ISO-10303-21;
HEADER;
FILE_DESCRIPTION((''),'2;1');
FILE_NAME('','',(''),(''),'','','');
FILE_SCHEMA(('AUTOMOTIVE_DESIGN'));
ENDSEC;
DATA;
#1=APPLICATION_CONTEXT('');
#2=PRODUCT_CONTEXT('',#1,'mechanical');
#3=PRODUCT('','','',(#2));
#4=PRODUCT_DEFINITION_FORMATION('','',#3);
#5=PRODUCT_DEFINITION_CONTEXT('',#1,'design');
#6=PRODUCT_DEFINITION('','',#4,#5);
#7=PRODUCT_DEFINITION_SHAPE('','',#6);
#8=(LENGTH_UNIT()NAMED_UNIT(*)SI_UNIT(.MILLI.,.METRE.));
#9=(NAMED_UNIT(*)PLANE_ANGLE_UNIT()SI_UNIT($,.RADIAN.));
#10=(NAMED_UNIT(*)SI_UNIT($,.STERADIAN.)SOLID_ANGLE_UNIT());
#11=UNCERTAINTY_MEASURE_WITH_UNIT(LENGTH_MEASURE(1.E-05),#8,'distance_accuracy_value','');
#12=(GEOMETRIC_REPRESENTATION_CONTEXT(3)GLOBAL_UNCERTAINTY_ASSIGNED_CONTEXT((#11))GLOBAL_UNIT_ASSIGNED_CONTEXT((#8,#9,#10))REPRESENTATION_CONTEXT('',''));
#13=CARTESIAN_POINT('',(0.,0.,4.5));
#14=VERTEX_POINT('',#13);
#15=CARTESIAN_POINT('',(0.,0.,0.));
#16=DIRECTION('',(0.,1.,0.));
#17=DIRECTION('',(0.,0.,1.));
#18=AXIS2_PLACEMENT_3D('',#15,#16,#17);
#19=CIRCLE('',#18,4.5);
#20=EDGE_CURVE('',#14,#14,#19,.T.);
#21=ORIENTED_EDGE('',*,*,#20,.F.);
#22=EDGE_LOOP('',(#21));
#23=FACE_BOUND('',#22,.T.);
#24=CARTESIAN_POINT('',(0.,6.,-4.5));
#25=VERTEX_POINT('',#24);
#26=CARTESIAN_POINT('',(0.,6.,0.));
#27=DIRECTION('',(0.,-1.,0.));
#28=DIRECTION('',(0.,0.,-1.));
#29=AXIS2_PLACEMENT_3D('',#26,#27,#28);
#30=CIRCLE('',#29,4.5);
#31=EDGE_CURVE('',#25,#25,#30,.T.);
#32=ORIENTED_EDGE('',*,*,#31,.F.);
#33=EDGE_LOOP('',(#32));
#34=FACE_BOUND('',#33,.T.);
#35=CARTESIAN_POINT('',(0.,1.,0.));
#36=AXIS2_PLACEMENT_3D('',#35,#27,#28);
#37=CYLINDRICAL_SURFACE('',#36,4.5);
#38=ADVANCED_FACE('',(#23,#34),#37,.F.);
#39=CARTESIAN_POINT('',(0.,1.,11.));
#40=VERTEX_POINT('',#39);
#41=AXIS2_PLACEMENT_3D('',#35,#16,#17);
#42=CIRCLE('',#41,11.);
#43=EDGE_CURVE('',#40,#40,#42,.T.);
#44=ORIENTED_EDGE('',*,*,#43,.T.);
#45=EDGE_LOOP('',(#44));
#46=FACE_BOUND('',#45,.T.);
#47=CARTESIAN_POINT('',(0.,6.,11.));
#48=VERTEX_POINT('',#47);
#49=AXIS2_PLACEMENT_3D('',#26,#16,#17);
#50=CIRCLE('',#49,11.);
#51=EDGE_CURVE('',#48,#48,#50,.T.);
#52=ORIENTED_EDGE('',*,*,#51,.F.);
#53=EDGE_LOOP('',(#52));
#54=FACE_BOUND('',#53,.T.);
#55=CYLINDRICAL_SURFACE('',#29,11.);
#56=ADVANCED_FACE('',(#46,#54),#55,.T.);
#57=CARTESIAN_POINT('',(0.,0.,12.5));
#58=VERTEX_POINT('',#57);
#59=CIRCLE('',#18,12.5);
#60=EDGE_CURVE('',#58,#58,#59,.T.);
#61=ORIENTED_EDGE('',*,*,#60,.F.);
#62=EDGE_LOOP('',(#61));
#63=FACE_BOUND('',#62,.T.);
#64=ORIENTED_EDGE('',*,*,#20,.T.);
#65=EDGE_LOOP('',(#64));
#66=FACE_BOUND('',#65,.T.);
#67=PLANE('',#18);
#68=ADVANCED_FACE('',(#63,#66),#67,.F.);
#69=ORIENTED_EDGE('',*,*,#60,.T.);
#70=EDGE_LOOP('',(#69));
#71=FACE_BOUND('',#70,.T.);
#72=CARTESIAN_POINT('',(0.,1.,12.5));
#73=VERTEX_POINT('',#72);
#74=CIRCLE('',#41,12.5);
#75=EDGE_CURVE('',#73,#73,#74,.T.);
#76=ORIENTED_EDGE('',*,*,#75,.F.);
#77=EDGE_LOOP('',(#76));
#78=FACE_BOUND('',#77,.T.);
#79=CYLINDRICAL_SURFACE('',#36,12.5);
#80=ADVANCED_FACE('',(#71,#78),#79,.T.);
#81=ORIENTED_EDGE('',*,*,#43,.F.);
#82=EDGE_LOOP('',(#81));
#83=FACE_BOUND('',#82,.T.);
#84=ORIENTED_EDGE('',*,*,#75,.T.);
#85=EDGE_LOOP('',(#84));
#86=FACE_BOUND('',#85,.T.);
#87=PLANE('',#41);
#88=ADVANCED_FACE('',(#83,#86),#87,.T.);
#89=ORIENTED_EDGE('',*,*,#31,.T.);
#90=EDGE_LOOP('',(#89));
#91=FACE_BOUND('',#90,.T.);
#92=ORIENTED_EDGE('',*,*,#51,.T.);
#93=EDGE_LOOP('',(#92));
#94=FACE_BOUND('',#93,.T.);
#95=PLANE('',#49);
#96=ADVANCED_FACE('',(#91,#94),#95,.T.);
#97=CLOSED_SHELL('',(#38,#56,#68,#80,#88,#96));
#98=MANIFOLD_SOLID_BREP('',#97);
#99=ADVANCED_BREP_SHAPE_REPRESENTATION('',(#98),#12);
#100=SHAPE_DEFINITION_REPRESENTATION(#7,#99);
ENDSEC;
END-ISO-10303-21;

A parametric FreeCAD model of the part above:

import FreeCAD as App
import Part
import Sketcher
from FreeCAD import Vector
Q = App.Units.Quantity

doc = App.newDocument("Part")
body = doc.addObject("PartDesign::Body", "Body")

sketch1 = doc.addObject("Sketcher::SketchObject", "Sketch")
body.addObject(sketch1)
sketch1.AttachmentSupport = (doc.XZ_Plane, [""])
sketch1.MapMode = "FlatFace"
sketch1.addGeometry([
    Part.Circle(Vector(0, 0, 0), Vector(0, 0, 1), 12.5),
    Part.Circle(Vector(0, 0, 0), Vector(0, 0, 1), 4.5),
], False)
sketch1.addConstraint([
    Sketcher.Constraint("Coincident", 0, 3, -1, 1),
    Sketcher.Constraint("Coincident", 1, 3, -1, 1),
    Sketcher.Constraint("Diameter", 0, Q("25 mm")),
    Sketcher.Constraint("Diameter", 1, Q("9 mm")),
])
pad1 = doc.addObject("PartDesign::Pad", "Pad")
body.addObject(pad1)
pad1.Profile = sketch1
pad1.Length = 1
pad1.Reversed = True

sketch2 = doc.addObject("Sketcher::SketchObject", "Sketch001")
body.addObject(sketch2)
sketch2.AttachmentSupport = (doc.XZ_Plane, [""])
sketch2.MapMode = "FlatFace"
sketch2.AttachmentOffset = App.Placement(Vector(0, 0, -1), App.Rotation())
sketch2.addGeometry(Part.Circle(Vector(0, 0, 0), Vector(0, 0, 1), 11), False)
sketch2.addConstraint([
    Sketcher.Constraint("Coincident", 0, 3, -1, 1),
    Sketcher.Constraint("Diameter", 0, Q("22 mm")),
])
pad2 = doc.addObject("PartDesign::Pad", "Pad001")
body.addObject(pad2)
pad2.Profile = sketch2
pad2.Length = 5
pad2.Reversed = True

sketch3 = doc.addObject("Sketcher::SketchObject", "Sketch002")
body.addObject(sketch3)
sketch3.AttachmentSupport = (doc.XZ_Plane, [""])
sketch3.MapMode = "FlatFace"
sketch3.AttachmentOffset = App.Placement(Vector(0, 0, -1), App.Rotation())
sketch3.addGeometry(Part.Circle(Vector(0, 0, 0), Vector(0, 0, 1), 4.5), False)
sketch3.addConstraint([
    Sketcher.Constraint("Coincident", 0, 3, -1, 1),
    Sketcher.Constraint("Diameter", 0, Q("9 mm")),
])
pocket1 = doc.addObject("PartDesign::Pocket", "Pocket")
body.addObject(pocket1)
pocket1.Profile = sketch3
pocket1.Type = "ThroughAll"
pocket1.Midplane = True

doc.recompute()
